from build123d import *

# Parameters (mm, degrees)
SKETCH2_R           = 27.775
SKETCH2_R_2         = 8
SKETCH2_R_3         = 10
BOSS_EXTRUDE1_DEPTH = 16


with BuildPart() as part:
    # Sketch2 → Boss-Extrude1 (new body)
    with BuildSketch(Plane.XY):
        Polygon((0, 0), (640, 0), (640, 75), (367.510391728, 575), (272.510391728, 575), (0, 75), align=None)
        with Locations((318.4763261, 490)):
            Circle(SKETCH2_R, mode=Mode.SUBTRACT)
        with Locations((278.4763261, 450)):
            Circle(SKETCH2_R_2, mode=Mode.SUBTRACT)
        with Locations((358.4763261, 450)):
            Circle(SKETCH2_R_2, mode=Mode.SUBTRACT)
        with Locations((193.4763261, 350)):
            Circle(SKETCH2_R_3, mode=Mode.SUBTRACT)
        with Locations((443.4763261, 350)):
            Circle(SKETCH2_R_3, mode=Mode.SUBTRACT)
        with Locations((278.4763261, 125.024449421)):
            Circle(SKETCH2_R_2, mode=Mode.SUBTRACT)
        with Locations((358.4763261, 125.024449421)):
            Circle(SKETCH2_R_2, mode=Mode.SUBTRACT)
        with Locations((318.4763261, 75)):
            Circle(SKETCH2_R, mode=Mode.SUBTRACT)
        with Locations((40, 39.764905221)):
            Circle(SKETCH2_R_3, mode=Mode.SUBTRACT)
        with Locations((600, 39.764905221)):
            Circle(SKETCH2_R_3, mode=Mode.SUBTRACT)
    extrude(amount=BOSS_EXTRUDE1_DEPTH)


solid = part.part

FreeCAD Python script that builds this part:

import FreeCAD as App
import Part
import Sketcher

doc = App.newDocument("Part")
body = doc.addObject("PartDesign::Body", "Body")

sketch1 = body.newObject("Sketcher::SketchObject", "Sketch")
sketch1.AttachmentSupport = (doc.getObject("XY_Plane"), [""])
sketch1.MapMode = "FlatFace"
sketch1.addGeometry(Part.LineSegment(App.Vector(0, 0, 0), App.Vector(640, 0, 0)), False)
sketch1.addGeometry(Part.LineSegment(App.Vector(640, 0, 0), App.Vector(640, 75, 0)), False)
sketch1.addGeometry(Part.LineSegment(App.Vector(640, 75, 0), App.Vector(368, 575, 0)), False)
sketch1.addGeometry(Part.LineSegment(App.Vector(368, 575, 0), App.Vector(273, 575, 0)), False)
sketch1.addGeometry(Part.LineSegment(App.Vector(273, 575, 0), App.Vector(0, 75, 0)), False)
sketch1.addGeometry(Part.LineSegment(App.Vector(0, 75, 0), App.Vector(0, 0, 0)), False)
sketch1.addGeometry(Part.Circle(App.Vector(40, 40, 0), App.Vector(0, 0, 1), 10), False)
sketch1.addGeometry(Part.Circle(App.Vector(318, 75, 0), App.Vector(0, 0, 1), 28), False)
sketch1.addGeometry(Part.Circle(App.Vector(278, 125, 0), App.Vector(0, 0, 1), 8), False)
sketch1.addGeometry(Part.Circle(App.Vector(358, 125, 0), App.Vector(0, 0, 1), 8), False)
sketch1.addGeometry(Part.Circle(App.Vector(600, 40, 0), App.Vector(0, 0, 1), 10), False)
sketch1.addGeometry(Part.Circle(App.Vector(193, 350, 0), App.Vector(0, 0, 1), 10), False)
sketch1.addGeometry(Part.Circle(App.Vector(278, 450, 0), App.Vector(0, 0, 1), 8), False)
sketch1.addGeometry(Part.Circle(App.Vector(318, 490, 0), App.Vector(0, 0, 1), 28), False)
sketch1.addGeometry(Part.Circle(App.Vector(443, 350, 0), App.Vector(0, 0, 1), 10), False)
sketch1.addGeometry(Part.Circle(App.Vector(358, 450, 0), App.Vector(0, 0, 1), 8), False)
sketch1.addConstraint(Sketcher.Constraint("Coincident", 0, 2, 1, 1))
sketch1.addConstraint(Sketcher.Constraint("Coincident", 1, 2, 2, 1))
sketch1.addConstraint(Sketcher.Constraint("Coincident", 2, 2, 3, 1))
sketch1.addConstraint(Sketcher.Constraint("Coincident", 3, 2, 4, 1))
sketch1.addConstraint(Sketcher.Constraint("Coincident", 4, 2, 5, 1))
sketch1.addConstraint(Sketcher.Constraint("Coincident", 5, 2, 0, 1))
sketch1.addConstraint(Sketcher.Constraint("Horizontal", 0))
sketch1.addConstraint(Sketcher.Constraint("Vertical", 1))
sketch1.addConstraint(Sketcher.Constraint("Horizontal", 3))
sketch1.addConstraint(Sketcher.Constraint("Vertical", 5))
sketch1.addConstraint(Sketcher.Constraint("Coincident", 5, 2, -1, 1))
sketch1.addConstraint(Sketcher.Constraint("Equal", 8, 9))
sketch1.addConstraint(Sketcher.Constraint("Equal", 6, 10))
sketch1.addConstraint(Sketcher.Constraint("Equal", 10, 11))
sketch1.addConstraint(Sketcher.Constraint("Equal", 9, 12))
sketch1.addConstraint(Sketcher.Constraint("Equal", 7, 13))
sketch1.addConstraint(Sketcher.Constraint("Equal", 11, 14))
sketch1.addConstraint(Sketcher.Constraint("Equal", 12, 15))
sketch1.addConstraint(Sketcher.Constraint("Horizontal", 8, 3, 9, 3))
sketch1.addConstraint(Sketcher.Constraint("Horizontal", 6, 3, 10, 3))
sketch1.addConstraint(Sketcher.Constraint("Horizontal", 11, 3, 14, 3))
sketch1.addConstraint(Sketcher.Constraint("Horizontal", 12, 3, 15, 3))
sketch1.addConstraint(Sketcher.Constraint("Horizontal", 7, 3, 1, 2))
sketch1.addConstraint(Sketcher.Constraint("Horizontal", 1, 2, 4, 2))
sketch1.addConstraint(Sketcher.Constraint("Vertical", 8, 3, 12, 3))
sketch1.addConstraint(Sketcher.Constraint("Vertical", 7, 3, 13, 3))
sketch1.addConstraint(Sketcher.Constraint("Vertical", 9, 3, 15, 3))
sketch1.addConstraint(Sketcher.Constraint("Diameter", 6, 20.0))
sketch1.addConstraint(Sketcher.Constraint("Diameter", 8, 16.0))
sketch1.addConstraint(Sketcher.Constraint("Diameter", 7, 55.55))
sketch1.addConstraint(Sketcher.Constraint("DistanceX", 0, 1, 0, 2, 640.0))
sketch1.addConstraint(Sketcher.Constraint("DistanceX", 3, 2, 3, 1, 95.0))
sketch1.addConstraint(Sketcher.Constraint("DistanceY", 1, 1, 1, 2, 75.0))
sketch1.addConstraint(Sketcher.Constraint("DistanceX", -1, 1, 6, 3, 40.0))
sketch1.addConstraint(Sketcher.Constraint("DistanceX", -1, 1, 10, 3, 600.0))
sketch1.addConstraint(Sketcher.Constraint("DistanceY", -1, 1, 11, 3, 350.0))
sketch1.addConstraint(Sketcher.Constraint("DistanceY", -1, 1, 12, 3, 450.0))
sketch1.addConstraint(Sketcher.Constraint("DistanceY", -1, 1, 13, 3, 490.0))
sketch1.addConstraint(Sketcher.Constraint("DistanceY", -1, 1, 2, 2, 575.0))
sketch1.addConstraint(Sketcher.Constraint("DistanceX", 8, 3, 7, 3, 40.0))
sketch1.addConstraint(Sketcher.Constraint("DistanceX", 7, 3, 9, 3, 40.0))
sketch1.addConstraint(Sketcher.Constraint("DistanceX", 11, 3, 8, 3, 85.0))
sketch1.addConstraint(Sketcher.Constraint("DistanceX", 13, 3, 14, 3, 125.0))
sketch1.addConstraint(Sketcher.Constraint("Distance", 4, 569.44))
sketch1.addConstraint(Sketcher.Constraint("DistanceY", -1, 1, 8, 3, 125.024449))
sketch1.addConstraint(Sketcher.Constraint("DistanceY", -1, 1, 6, 3, 39.764905))
sketch1.addConstraint(Sketcher.Constraint("DistanceX", -1, 1, 7, 3, 318.476326))
pad1 = body.newObject("PartDesign::Pad", "Pad")
pad1.Profile = sketch1
pad1.Length = 16

doc.recompute()
